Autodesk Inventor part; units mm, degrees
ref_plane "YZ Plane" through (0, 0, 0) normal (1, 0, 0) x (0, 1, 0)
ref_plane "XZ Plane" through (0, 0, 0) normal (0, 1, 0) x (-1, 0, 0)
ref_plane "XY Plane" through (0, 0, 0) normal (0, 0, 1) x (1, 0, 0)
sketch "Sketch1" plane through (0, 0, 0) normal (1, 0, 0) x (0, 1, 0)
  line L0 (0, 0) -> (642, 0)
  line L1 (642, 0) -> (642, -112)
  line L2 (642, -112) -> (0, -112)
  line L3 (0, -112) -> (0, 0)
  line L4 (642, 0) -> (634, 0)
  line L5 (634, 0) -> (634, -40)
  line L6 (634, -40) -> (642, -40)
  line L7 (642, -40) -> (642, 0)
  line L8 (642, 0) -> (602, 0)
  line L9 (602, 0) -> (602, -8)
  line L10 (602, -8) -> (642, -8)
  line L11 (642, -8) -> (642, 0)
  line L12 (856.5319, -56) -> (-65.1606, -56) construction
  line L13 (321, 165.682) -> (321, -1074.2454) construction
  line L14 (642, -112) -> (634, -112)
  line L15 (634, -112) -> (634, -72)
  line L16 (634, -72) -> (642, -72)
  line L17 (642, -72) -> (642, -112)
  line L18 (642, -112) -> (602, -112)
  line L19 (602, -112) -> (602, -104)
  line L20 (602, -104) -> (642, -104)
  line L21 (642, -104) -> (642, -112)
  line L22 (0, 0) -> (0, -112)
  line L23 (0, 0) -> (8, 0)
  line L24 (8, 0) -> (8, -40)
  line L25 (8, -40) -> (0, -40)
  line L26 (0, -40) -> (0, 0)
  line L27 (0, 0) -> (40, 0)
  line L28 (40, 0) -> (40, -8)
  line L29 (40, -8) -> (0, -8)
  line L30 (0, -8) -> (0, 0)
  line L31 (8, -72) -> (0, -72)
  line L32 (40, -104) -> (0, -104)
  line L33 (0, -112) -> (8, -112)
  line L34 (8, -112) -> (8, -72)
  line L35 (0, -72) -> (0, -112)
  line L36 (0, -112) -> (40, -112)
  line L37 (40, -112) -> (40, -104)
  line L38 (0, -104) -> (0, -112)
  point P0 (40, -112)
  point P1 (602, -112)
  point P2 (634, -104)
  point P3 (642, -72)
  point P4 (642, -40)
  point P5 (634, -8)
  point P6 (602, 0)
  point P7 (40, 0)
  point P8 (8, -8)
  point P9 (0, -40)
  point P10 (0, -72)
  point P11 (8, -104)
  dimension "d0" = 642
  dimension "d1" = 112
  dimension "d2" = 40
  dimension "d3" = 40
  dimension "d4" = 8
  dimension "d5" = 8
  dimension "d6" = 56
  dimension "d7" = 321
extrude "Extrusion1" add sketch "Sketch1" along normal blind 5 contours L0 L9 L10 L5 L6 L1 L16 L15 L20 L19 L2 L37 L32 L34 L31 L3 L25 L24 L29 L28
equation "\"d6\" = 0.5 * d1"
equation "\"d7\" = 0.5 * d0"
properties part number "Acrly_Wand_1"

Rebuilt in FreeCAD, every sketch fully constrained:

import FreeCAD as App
import Part
import Sketcher
Q = App.Units.Quantity

doc = App.newDocument("Part")
params = doc.addObject("Spreadsheet::Sheet", "Params")
for row, (alias, value) in enumerate([
    ("sketch1_width", "8 mm"),
    ("pad1_length", "5 mm"),
], start=1):
    params.set(f"A{row}", alias)
    params.set(f"B{row}", "=" + value)
    params.setAlias(f"B{row}", alias)

body = doc.addObject("PartDesign::Body", "Body")

sketch1 = body.newObject("Sketcher::SketchObject", "Sketch")
sketch1.AttachmentSupport = (doc.getObject("YZ_Plane"), [""])
sketch1.MapMode = "FlatFace"
sketch1.addGeometry([
    Part.LineSegment(App.Vector(602, 0, 0), App.Vector(40, 0, 0)),
    Part.LineSegment(App.Vector(40, 0, 0), App.Vector(40, -8, 0)),
    Part.LineSegment(App.Vector(40, -8, 0), App.Vector(8, -8, 0)),
    Part.LineSegment(App.Vector(8, -8, 0), App.Vector(8, -40, 0)),
    Part.LineSegment(App.Vector(8, -40, 0), App.Vector(0, -40, 0)),
    Part.LineSegment(App.Vector(0, -40, 0), App.Vector(0, -72, 0)),
    Part.LineSegment(App.Vector(0, -72, 0), App.Vector(8, -72, 0)),
    Part.LineSegment(App.Vector(8, -72, 0), App.Vector(8, -104, 0)),
    Part.LineSegment(App.Vector(8, -104, 0), App.Vector(40, -104, 0)),
    Part.LineSegment(App.Vector(40, -104, 0), App.Vector(40, -112, 0)),
    Part.LineSegment(App.Vector(40, -112, 0), App.Vector(602, -112, 0)),
    Part.LineSegment(App.Vector(602, -112, 0), App.Vector(602, -104, 0)),
    Part.LineSegment(App.Vector(602, -104, 0), App.Vector(634, -104, 0)),
    Part.LineSegment(App.Vector(634, -104, 0), App.Vector(634, -72, 0)),
    Part.LineSegment(App.Vector(634, -72, 0), App.Vector(642, -72, 0)),
    Part.LineSegment(App.Vector(642, -72, 0), App.Vector(642, -40, 0)),
    Part.LineSegment(App.Vector(642, -40, 0), App.Vector(634, -40, 0)),
    Part.LineSegment(App.Vector(634, -40, 0), App.Vector(634, -8, 0)),
    Part.LineSegment(App.Vector(634, -8, 0), App.Vector(602, -8, 0)),
    Part.LineSegment(App.Vector(602, -8, 0), App.Vector(602, 0, 0)),
], False)
sketch1.addConstraint([
    Sketcher.Constraint("Coincident", 0, 2, 1, 1),
    Sketcher.Constraint("Coincident", 1, 2, 2, 1),
    Sketcher.Constraint("Coincident", 2, 2, 3, 1),
    Sketcher.Constraint("Coincident", 3, 2, 4, 1),
    Sketcher.Constraint("Coincident", 4, 2, 5, 1),
    Sketcher.Constraint("Coincident", 5, 2, 6, 1),
    Sketcher.Constraint("Coincident", 6, 2, 7, 1),
    Sketcher.Constraint("Coincident", 7, 2, 8, 1),
    Sketcher.Constraint("Coincident", 8, 2, 9, 1),
    Sketcher.Constraint("Coincident", 9, 2, 10, 1),
    Sketcher.Constraint("Coincident", 10, 2, 11, 1),
    Sketcher.Constraint("Coincident", 11, 2, 12, 1),
    Sketcher.Constraint("Coincident", 12, 2, 13, 1),
    Sketcher.Constraint("Coincident", 13, 2, 14, 1),
    Sketcher.Constraint("Coincident", 14, 2, 15, 1),
    Sketcher.Constraint("Coincident", 15, 2, 16, 1),
    Sketcher.Constraint("Coincident", 16, 2, 17, 1),
    Sketcher.Constraint("Coincident", 17, 2, 18, 1),
    Sketcher.Constraint("Coincident", 18, 2, 19, 1),
    Sketcher.Constraint("Coincident", 19, 2, 0, 1),
    Sketcher.Constraint("Horizontal", 0),
    Sketcher.Constraint("Vertical", 1),
    Sketcher.Constraint("Horizontal", 2),
    Sketcher.Constraint("Vertical", 3),
    Sketcher.Constraint("Horizontal", 4),
    Sketcher.Constraint("Vertical", 5),
    Sketcher.Constraint("Horizontal", 6),
    Sketcher.Constraint("Vertical", 7),
    Sketcher.Constraint("Horizontal", 8),
    Sketcher.Constraint("Vertical", 9),
    Sketcher.Constraint("Horizontal", 10),
    Sketcher.Constraint("Vertical", 11),
    Sketcher.Constraint("Horizontal", 12),
    Sketcher.Constraint("Vertical", 13),
    Sketcher.Constraint("Horizontal", 14),
    Sketcher.Constraint("Vertical", 15),
    Sketcher.Constraint("Horizontal", 16),
    Sketcher.Constraint("Vertical", 17),
    Sketcher.Constraint("Horizontal", 18),
    Sketcher.Constraint("Vertical", 19),
    Sketcher.Constraint("PointOnObject", 0, 2, -1),
    Sketcher.Constraint("PointOnObject", 4, 2, -2),
    Sketcher.Constraint("Horizontal", 8, 2, 11, 2),
    Sketcher.Constraint("Horizontal", 6, 2, 13, 2),
    Sketcher.Constraint("Horizontal", 4, 2, 15, 2),
    Sketcher.Constraint("Horizontal", 2, 2, 17, 2),
    Sketcher.Constraint("Vertical", 3, 2, 6, 2),
    Sketcher.Constraint("Vertical", 1, 2, 8, 2),
    Sketcher.Constraint("Vertical", 13, 2, 16, 2),
    Sketcher.Constraint("Vertical", 11, 2, 18, 2),
    Sketcher.Constraint("Equal", 8, 12),
    Sketcher.Constraint("Equal", 6, 14),
    Sketcher.Constraint("Equal", 16, 1),
    Sketcher.Constraint("Equal", 18, 3),
    Sketcher.Constraint("Equal", 3, 5),
    Sketcher.Constraint("Equal", 5, 7),
    Sketcher.Constraint("Equal", 1, 9),
    Sketcher.Constraint("DistanceX", 4, 2, 4, 1, Q("8 mm")),
    Sketcher.Constraint("DistanceX", -1, 1, 0, 2, Q("40 mm")),
    Sketcher.Constraint("DistanceX", -1, 1, 14, 2, Q("642 mm")),
])
sketch1.setExpression("Constraints[57]", "Params.sketch1_width")
pad1 = body.newObject("PartDesign::Pad", "Pad")
pad1.Profile = sketch1
pad1.setExpression("Length", "Params.pad1_length")

doc.recompute()
